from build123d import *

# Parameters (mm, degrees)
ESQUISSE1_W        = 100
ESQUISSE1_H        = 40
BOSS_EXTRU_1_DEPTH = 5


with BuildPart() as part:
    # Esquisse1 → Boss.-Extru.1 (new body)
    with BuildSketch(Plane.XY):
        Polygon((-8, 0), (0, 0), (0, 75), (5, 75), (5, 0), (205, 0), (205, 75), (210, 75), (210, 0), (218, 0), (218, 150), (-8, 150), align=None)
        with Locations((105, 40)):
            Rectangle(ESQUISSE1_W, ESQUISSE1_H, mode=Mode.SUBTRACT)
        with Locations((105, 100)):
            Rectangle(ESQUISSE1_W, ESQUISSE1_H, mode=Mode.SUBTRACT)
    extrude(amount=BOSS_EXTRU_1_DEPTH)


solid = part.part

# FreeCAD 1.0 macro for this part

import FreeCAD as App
import Part
import Sketcher

V = App.Vector

doc = App.newDocument("Part")
body = doc.addObject("PartDesign::Body", "Body")

# Sketch on XY plane
sketch1 = doc.addObject("Sketcher::SketchObject", "Sketch")
body.addObject(sketch1)
sketch1.AttachmentSupport = (doc.XY_Plane, [""])
sketch1.MapMode = "FlatFace"
sketch1.addGeometry([
    Part.LineSegment(V(-8, 0, 0), V(0, 0, 0)),  # 0
    Part.LineSegment(V(0, 0, 0), V(0, 75, 0)),  # 1
    Part.LineSegment(V(0, 75, 0), V(5, 75, 0)),  # 2
    Part.LineSegment(V(5, 75, 0), V(5, 0, 0)),  # 3
    Part.LineSegment(V(5, 0, 0), V(205, 0, 0)),  # 4
    Part.LineSegment(V(205, 0, 0), V(205, 75, 0)),  # 5
    Part.LineSegment(V(205, 75, 0), V(210, 75, 0)),  # 6
    Part.LineSegment(V(210, 75, 0), V(210, 0, 0)),  # 7
    Part.LineSegment(V(210, 0, 0), V(218, 0, 0)),  # 8
    Part.LineSegment(V(218, 0, 0), V(218, 150, 0)),  # 9
    Part.LineSegment(V(218, 150, 0), V(-8, 150, 0)),  # 10
    Part.LineSegment(V(-8, 150, 0), V(-8, 0, 0)),  # 11
    Part.LineSegment(V(155, 20, 0), V(55, 20, 0)),  # 12
    Part.LineSegment(V(55, 20, 0), V(55, 60, 0)),  # 13
    Part.LineSegment(V(55, 60, 0), V(155, 60, 0)),  # 14
    Part.LineSegment(V(155, 60, 0), V(155, 20, 0)),  # 15
    Part.LineSegment(V(155, 80, 0), V(55, 80, 0)),  # 16
    Part.LineSegment(V(55, 80, 0), V(55, 120, 0)),  # 17
    Part.LineSegment(V(55, 120, 0), V(155, 120, 0)),  # 18
    Part.LineSegment(V(155, 120, 0), V(155, 80, 0)),  # 19
], False)
sketch1.addConstraint([
    Sketcher.Constraint("Coincident", 0, 2, 1, 1),
    Sketcher.Constraint("Coincident", 1, 2, 2, 1),
    Sketcher.Constraint("Coincident", 2, 2, 3, 1),
    Sketcher.Constraint("Coincident", 3, 2, 4, 1),
    Sketcher.Constraint("Coincident", 4, 2, 5, 1),
    Sketcher.Constraint("Coincident", 5, 2, 6, 1),
    Sketcher.Constraint("Coincident", 6, 2, 7, 1),
    Sketcher.Constraint("Coincident", 7, 2, 8, 1),
    Sketcher.Constraint("Coincident", 8, 2, 9, 1),
    Sketcher.Constraint("Coincident", 9, 2, 10, 1),
    Sketcher.Constraint("Coincident", 10, 2, 11, 1),
    Sketcher.Constraint("Coincident", 11, 2, 0, 1),
    Sketcher.Constraint("Coincident", 12, 2, 13, 1),
    Sketcher.Constraint("Coincident", 13, 2, 14, 1),
    Sketcher.Constraint("Coincident", 14, 2, 15, 1),
    Sketcher.Constraint("Coincident", 15, 2, 12, 1),
    Sketcher.Constraint("Coincident", 16, 2, 17, 1),
    Sketcher.Constraint("Coincident", 17, 2, 18, 1),
    Sketcher.Constraint("Coincident", 18, 2, 19, 1),
    Sketcher.Constraint("Coincident", 19, 2, 16, 1),
    Sketcher.Constraint("Horizontal", 0),
    Sketcher.Constraint("Vertical", 1),
    Sketcher.Constraint("Horizontal", 2),
    Sketcher.Constraint("Vertical", 3),
    Sketcher.Constraint("Horizontal", 4),
    Sketcher.Constraint("Vertical", 5),
    Sketcher.Constraint("Horizontal", 6),
    Sketcher.Constraint("Vertical", 7),
    Sketcher.Constraint("Horizontal", 8),
    Sketcher.Constraint("Vertical", 9),
    Sketcher.Constraint("Horizontal", 10),
    Sketcher.Constraint("Vertical", 11),
    Sketcher.Constraint("Horizontal", 12),
    Sketcher.Constraint("Vertical", 13),
    Sketcher.Constraint("Horizontal", 14),
    Sketcher.Constraint("Vertical", 15),
    Sketcher.Constraint("Horizontal", 16),
    Sketcher.Constraint("Vertical", 17),
    Sketcher.Constraint("Horizontal", 18),
    Sketcher.Constraint("Vertical", 19),
    Sketcher.Constraint("Coincident", 0, 2, -1, 1),
    Sketcher.Constraint("PointOnObject", 3, 2, -1),
    Sketcher.Constraint("PointOnObject", 7, 2, -1),
    Sketcher.Constraint("Horizontal", 2, 2, 5, 2),
    Sketcher.Constraint("Vertical", 13, 2, 16, 2),
    Sketcher.Constraint("Vertical", 15, 2, 18, 2),
    Sketcher.Constraint("Equal", 2, 6),
    Sketcher.Constraint("Equal", 0, 8),
    Sketcher.Constraint("Equal", 15, 17),
    Sketcher.Constraint("DistanceX", 0, 1, 0, 2, 8.0),
    Sketcher.Constraint("DistanceX", 2, 1, 2, 2, 5.0),
    Sketcher.Constraint("DistanceX", 4, 1, 4, 2, 200.0),
    Sketcher.Constraint("DistanceX", 12, 2, 12, 1, 100.0),
    Sketcher.Constraint("DistanceY", 1, 1, 1, 2, 75.0),
    Sketcher.Constraint("DistanceY", 9, 1, 9, 2, 150.0),
    Sketcher.Constraint("DistanceY", 13, 1, 13, 2, 40.0),
    Sketcher.Constraint("DistanceX", -1, 1, 12, 2, 55.0),
    Sketcher.Constraint("DistanceY", -1, 1, 12, 2, 20.0),
    Sketcher.Constraint("DistanceY", -1, 1, 16, 2, 80.0),
])
pad1 = doc.addObject("PartDesign::Pad", "Pad")
body.addObject(pad1)
pad1.Profile = sketch1
pad1.Length = 5

doc.recompute()
